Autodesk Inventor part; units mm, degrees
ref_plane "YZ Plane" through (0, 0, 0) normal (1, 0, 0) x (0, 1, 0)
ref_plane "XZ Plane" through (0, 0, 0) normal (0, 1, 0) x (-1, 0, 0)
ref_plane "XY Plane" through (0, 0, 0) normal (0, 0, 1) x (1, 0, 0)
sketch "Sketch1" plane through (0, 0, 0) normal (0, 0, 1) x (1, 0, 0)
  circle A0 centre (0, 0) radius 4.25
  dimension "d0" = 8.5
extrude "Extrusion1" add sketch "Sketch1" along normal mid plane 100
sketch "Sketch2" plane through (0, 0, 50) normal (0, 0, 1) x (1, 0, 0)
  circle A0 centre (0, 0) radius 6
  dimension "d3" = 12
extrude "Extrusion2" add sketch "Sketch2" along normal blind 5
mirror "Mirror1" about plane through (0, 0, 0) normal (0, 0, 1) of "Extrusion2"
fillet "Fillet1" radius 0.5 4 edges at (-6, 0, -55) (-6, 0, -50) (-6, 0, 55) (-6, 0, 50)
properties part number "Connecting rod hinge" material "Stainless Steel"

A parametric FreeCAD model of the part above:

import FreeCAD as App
import Part
import Sketcher
Q = App.Units.Quantity


def edges_at(feature, points):
    """Names of the edges that pass closest to the given points."""
    edges = feature.Shape.Edges
    near = lambda p: min(range(len(edges)), key=lambda i: edges[i].distToShape(Part.Vertex(*p))[0])
    return sorted({f"Edge{near(p) + 1}" for p in points})

doc = App.newDocument("Part")
body = doc.addObject("PartDesign::Body", "Body")

# Sketch on XY plane
sketch1 = doc.addObject("Sketcher::SketchObject", "Sketch")
body.addObject(sketch1)
sketch1.AttachmentSupport = (doc.XY_Plane, [""])
sketch1.MapMode = "FlatFace"
sketch1.addGeometry(Part.Circle(App.Vector(0, 0, 0), App.Vector(0, 0, 1), 4.2), False)
sketch1.addConstraint([
    Sketcher.Constraint("Coincident", 0, 3, -1, 1),
    Sketcher.Constraint("Diameter", 0, Q("8.5 mm")),
])
pad1 = doc.addObject("PartDesign::Pad", "Pad")
body.addObject(pad1)
pad1.Profile = sketch1
pad1.Length = 100
pad1.Midplane = True

# Sketch on XY plane
sketch2 = doc.addObject("Sketcher::SketchObject", "Sketch001")
body.addObject(sketch2)
sketch2.AttachmentSupport = (doc.XY_Plane, [""])
sketch2.MapMode = "FlatFace"
sketch2.AttachmentOffset = App.Placement(App.Vector(0, 0, 50), App.Rotation())
sketch2.addGeometry(Part.Circle(App.Vector(0, 0, 0), App.Vector(0, 0, 1), 6), False)
sketch2.addConstraint([
    Sketcher.Constraint("Coincident", 0, 3, -1, 1),
    Sketcher.Constraint("Diameter", 0, Q("12 mm")),
])
pad2 = doc.addObject("PartDesign::Pad", "Pad001")
body.addObject(pad2)
pad2.Profile = sketch2
pad2.Length = 5
doc.recompute()

mirrored = doc.addObject("PartDesign::Mirrored", "Mirrored")
body.addObject(mirrored)
mirrored.Originals = [pad2]
mirrored.MirrorPlane = (doc.XY_Plane, [""])
body.Tip = mirrored
doc.recompute()

fillet = doc.addObject("PartDesign::Fillet", "Fillet")
body.addObject(fillet)
fillet.Base = (mirrored, edges_at(mirrored, [
    (-6, 0, -55),
    (-6, 0, -50),
    (-6, 0, 55),
    (-6, 0, 50),
]))
fillet.Radius = 0.5

doc.recompute()
